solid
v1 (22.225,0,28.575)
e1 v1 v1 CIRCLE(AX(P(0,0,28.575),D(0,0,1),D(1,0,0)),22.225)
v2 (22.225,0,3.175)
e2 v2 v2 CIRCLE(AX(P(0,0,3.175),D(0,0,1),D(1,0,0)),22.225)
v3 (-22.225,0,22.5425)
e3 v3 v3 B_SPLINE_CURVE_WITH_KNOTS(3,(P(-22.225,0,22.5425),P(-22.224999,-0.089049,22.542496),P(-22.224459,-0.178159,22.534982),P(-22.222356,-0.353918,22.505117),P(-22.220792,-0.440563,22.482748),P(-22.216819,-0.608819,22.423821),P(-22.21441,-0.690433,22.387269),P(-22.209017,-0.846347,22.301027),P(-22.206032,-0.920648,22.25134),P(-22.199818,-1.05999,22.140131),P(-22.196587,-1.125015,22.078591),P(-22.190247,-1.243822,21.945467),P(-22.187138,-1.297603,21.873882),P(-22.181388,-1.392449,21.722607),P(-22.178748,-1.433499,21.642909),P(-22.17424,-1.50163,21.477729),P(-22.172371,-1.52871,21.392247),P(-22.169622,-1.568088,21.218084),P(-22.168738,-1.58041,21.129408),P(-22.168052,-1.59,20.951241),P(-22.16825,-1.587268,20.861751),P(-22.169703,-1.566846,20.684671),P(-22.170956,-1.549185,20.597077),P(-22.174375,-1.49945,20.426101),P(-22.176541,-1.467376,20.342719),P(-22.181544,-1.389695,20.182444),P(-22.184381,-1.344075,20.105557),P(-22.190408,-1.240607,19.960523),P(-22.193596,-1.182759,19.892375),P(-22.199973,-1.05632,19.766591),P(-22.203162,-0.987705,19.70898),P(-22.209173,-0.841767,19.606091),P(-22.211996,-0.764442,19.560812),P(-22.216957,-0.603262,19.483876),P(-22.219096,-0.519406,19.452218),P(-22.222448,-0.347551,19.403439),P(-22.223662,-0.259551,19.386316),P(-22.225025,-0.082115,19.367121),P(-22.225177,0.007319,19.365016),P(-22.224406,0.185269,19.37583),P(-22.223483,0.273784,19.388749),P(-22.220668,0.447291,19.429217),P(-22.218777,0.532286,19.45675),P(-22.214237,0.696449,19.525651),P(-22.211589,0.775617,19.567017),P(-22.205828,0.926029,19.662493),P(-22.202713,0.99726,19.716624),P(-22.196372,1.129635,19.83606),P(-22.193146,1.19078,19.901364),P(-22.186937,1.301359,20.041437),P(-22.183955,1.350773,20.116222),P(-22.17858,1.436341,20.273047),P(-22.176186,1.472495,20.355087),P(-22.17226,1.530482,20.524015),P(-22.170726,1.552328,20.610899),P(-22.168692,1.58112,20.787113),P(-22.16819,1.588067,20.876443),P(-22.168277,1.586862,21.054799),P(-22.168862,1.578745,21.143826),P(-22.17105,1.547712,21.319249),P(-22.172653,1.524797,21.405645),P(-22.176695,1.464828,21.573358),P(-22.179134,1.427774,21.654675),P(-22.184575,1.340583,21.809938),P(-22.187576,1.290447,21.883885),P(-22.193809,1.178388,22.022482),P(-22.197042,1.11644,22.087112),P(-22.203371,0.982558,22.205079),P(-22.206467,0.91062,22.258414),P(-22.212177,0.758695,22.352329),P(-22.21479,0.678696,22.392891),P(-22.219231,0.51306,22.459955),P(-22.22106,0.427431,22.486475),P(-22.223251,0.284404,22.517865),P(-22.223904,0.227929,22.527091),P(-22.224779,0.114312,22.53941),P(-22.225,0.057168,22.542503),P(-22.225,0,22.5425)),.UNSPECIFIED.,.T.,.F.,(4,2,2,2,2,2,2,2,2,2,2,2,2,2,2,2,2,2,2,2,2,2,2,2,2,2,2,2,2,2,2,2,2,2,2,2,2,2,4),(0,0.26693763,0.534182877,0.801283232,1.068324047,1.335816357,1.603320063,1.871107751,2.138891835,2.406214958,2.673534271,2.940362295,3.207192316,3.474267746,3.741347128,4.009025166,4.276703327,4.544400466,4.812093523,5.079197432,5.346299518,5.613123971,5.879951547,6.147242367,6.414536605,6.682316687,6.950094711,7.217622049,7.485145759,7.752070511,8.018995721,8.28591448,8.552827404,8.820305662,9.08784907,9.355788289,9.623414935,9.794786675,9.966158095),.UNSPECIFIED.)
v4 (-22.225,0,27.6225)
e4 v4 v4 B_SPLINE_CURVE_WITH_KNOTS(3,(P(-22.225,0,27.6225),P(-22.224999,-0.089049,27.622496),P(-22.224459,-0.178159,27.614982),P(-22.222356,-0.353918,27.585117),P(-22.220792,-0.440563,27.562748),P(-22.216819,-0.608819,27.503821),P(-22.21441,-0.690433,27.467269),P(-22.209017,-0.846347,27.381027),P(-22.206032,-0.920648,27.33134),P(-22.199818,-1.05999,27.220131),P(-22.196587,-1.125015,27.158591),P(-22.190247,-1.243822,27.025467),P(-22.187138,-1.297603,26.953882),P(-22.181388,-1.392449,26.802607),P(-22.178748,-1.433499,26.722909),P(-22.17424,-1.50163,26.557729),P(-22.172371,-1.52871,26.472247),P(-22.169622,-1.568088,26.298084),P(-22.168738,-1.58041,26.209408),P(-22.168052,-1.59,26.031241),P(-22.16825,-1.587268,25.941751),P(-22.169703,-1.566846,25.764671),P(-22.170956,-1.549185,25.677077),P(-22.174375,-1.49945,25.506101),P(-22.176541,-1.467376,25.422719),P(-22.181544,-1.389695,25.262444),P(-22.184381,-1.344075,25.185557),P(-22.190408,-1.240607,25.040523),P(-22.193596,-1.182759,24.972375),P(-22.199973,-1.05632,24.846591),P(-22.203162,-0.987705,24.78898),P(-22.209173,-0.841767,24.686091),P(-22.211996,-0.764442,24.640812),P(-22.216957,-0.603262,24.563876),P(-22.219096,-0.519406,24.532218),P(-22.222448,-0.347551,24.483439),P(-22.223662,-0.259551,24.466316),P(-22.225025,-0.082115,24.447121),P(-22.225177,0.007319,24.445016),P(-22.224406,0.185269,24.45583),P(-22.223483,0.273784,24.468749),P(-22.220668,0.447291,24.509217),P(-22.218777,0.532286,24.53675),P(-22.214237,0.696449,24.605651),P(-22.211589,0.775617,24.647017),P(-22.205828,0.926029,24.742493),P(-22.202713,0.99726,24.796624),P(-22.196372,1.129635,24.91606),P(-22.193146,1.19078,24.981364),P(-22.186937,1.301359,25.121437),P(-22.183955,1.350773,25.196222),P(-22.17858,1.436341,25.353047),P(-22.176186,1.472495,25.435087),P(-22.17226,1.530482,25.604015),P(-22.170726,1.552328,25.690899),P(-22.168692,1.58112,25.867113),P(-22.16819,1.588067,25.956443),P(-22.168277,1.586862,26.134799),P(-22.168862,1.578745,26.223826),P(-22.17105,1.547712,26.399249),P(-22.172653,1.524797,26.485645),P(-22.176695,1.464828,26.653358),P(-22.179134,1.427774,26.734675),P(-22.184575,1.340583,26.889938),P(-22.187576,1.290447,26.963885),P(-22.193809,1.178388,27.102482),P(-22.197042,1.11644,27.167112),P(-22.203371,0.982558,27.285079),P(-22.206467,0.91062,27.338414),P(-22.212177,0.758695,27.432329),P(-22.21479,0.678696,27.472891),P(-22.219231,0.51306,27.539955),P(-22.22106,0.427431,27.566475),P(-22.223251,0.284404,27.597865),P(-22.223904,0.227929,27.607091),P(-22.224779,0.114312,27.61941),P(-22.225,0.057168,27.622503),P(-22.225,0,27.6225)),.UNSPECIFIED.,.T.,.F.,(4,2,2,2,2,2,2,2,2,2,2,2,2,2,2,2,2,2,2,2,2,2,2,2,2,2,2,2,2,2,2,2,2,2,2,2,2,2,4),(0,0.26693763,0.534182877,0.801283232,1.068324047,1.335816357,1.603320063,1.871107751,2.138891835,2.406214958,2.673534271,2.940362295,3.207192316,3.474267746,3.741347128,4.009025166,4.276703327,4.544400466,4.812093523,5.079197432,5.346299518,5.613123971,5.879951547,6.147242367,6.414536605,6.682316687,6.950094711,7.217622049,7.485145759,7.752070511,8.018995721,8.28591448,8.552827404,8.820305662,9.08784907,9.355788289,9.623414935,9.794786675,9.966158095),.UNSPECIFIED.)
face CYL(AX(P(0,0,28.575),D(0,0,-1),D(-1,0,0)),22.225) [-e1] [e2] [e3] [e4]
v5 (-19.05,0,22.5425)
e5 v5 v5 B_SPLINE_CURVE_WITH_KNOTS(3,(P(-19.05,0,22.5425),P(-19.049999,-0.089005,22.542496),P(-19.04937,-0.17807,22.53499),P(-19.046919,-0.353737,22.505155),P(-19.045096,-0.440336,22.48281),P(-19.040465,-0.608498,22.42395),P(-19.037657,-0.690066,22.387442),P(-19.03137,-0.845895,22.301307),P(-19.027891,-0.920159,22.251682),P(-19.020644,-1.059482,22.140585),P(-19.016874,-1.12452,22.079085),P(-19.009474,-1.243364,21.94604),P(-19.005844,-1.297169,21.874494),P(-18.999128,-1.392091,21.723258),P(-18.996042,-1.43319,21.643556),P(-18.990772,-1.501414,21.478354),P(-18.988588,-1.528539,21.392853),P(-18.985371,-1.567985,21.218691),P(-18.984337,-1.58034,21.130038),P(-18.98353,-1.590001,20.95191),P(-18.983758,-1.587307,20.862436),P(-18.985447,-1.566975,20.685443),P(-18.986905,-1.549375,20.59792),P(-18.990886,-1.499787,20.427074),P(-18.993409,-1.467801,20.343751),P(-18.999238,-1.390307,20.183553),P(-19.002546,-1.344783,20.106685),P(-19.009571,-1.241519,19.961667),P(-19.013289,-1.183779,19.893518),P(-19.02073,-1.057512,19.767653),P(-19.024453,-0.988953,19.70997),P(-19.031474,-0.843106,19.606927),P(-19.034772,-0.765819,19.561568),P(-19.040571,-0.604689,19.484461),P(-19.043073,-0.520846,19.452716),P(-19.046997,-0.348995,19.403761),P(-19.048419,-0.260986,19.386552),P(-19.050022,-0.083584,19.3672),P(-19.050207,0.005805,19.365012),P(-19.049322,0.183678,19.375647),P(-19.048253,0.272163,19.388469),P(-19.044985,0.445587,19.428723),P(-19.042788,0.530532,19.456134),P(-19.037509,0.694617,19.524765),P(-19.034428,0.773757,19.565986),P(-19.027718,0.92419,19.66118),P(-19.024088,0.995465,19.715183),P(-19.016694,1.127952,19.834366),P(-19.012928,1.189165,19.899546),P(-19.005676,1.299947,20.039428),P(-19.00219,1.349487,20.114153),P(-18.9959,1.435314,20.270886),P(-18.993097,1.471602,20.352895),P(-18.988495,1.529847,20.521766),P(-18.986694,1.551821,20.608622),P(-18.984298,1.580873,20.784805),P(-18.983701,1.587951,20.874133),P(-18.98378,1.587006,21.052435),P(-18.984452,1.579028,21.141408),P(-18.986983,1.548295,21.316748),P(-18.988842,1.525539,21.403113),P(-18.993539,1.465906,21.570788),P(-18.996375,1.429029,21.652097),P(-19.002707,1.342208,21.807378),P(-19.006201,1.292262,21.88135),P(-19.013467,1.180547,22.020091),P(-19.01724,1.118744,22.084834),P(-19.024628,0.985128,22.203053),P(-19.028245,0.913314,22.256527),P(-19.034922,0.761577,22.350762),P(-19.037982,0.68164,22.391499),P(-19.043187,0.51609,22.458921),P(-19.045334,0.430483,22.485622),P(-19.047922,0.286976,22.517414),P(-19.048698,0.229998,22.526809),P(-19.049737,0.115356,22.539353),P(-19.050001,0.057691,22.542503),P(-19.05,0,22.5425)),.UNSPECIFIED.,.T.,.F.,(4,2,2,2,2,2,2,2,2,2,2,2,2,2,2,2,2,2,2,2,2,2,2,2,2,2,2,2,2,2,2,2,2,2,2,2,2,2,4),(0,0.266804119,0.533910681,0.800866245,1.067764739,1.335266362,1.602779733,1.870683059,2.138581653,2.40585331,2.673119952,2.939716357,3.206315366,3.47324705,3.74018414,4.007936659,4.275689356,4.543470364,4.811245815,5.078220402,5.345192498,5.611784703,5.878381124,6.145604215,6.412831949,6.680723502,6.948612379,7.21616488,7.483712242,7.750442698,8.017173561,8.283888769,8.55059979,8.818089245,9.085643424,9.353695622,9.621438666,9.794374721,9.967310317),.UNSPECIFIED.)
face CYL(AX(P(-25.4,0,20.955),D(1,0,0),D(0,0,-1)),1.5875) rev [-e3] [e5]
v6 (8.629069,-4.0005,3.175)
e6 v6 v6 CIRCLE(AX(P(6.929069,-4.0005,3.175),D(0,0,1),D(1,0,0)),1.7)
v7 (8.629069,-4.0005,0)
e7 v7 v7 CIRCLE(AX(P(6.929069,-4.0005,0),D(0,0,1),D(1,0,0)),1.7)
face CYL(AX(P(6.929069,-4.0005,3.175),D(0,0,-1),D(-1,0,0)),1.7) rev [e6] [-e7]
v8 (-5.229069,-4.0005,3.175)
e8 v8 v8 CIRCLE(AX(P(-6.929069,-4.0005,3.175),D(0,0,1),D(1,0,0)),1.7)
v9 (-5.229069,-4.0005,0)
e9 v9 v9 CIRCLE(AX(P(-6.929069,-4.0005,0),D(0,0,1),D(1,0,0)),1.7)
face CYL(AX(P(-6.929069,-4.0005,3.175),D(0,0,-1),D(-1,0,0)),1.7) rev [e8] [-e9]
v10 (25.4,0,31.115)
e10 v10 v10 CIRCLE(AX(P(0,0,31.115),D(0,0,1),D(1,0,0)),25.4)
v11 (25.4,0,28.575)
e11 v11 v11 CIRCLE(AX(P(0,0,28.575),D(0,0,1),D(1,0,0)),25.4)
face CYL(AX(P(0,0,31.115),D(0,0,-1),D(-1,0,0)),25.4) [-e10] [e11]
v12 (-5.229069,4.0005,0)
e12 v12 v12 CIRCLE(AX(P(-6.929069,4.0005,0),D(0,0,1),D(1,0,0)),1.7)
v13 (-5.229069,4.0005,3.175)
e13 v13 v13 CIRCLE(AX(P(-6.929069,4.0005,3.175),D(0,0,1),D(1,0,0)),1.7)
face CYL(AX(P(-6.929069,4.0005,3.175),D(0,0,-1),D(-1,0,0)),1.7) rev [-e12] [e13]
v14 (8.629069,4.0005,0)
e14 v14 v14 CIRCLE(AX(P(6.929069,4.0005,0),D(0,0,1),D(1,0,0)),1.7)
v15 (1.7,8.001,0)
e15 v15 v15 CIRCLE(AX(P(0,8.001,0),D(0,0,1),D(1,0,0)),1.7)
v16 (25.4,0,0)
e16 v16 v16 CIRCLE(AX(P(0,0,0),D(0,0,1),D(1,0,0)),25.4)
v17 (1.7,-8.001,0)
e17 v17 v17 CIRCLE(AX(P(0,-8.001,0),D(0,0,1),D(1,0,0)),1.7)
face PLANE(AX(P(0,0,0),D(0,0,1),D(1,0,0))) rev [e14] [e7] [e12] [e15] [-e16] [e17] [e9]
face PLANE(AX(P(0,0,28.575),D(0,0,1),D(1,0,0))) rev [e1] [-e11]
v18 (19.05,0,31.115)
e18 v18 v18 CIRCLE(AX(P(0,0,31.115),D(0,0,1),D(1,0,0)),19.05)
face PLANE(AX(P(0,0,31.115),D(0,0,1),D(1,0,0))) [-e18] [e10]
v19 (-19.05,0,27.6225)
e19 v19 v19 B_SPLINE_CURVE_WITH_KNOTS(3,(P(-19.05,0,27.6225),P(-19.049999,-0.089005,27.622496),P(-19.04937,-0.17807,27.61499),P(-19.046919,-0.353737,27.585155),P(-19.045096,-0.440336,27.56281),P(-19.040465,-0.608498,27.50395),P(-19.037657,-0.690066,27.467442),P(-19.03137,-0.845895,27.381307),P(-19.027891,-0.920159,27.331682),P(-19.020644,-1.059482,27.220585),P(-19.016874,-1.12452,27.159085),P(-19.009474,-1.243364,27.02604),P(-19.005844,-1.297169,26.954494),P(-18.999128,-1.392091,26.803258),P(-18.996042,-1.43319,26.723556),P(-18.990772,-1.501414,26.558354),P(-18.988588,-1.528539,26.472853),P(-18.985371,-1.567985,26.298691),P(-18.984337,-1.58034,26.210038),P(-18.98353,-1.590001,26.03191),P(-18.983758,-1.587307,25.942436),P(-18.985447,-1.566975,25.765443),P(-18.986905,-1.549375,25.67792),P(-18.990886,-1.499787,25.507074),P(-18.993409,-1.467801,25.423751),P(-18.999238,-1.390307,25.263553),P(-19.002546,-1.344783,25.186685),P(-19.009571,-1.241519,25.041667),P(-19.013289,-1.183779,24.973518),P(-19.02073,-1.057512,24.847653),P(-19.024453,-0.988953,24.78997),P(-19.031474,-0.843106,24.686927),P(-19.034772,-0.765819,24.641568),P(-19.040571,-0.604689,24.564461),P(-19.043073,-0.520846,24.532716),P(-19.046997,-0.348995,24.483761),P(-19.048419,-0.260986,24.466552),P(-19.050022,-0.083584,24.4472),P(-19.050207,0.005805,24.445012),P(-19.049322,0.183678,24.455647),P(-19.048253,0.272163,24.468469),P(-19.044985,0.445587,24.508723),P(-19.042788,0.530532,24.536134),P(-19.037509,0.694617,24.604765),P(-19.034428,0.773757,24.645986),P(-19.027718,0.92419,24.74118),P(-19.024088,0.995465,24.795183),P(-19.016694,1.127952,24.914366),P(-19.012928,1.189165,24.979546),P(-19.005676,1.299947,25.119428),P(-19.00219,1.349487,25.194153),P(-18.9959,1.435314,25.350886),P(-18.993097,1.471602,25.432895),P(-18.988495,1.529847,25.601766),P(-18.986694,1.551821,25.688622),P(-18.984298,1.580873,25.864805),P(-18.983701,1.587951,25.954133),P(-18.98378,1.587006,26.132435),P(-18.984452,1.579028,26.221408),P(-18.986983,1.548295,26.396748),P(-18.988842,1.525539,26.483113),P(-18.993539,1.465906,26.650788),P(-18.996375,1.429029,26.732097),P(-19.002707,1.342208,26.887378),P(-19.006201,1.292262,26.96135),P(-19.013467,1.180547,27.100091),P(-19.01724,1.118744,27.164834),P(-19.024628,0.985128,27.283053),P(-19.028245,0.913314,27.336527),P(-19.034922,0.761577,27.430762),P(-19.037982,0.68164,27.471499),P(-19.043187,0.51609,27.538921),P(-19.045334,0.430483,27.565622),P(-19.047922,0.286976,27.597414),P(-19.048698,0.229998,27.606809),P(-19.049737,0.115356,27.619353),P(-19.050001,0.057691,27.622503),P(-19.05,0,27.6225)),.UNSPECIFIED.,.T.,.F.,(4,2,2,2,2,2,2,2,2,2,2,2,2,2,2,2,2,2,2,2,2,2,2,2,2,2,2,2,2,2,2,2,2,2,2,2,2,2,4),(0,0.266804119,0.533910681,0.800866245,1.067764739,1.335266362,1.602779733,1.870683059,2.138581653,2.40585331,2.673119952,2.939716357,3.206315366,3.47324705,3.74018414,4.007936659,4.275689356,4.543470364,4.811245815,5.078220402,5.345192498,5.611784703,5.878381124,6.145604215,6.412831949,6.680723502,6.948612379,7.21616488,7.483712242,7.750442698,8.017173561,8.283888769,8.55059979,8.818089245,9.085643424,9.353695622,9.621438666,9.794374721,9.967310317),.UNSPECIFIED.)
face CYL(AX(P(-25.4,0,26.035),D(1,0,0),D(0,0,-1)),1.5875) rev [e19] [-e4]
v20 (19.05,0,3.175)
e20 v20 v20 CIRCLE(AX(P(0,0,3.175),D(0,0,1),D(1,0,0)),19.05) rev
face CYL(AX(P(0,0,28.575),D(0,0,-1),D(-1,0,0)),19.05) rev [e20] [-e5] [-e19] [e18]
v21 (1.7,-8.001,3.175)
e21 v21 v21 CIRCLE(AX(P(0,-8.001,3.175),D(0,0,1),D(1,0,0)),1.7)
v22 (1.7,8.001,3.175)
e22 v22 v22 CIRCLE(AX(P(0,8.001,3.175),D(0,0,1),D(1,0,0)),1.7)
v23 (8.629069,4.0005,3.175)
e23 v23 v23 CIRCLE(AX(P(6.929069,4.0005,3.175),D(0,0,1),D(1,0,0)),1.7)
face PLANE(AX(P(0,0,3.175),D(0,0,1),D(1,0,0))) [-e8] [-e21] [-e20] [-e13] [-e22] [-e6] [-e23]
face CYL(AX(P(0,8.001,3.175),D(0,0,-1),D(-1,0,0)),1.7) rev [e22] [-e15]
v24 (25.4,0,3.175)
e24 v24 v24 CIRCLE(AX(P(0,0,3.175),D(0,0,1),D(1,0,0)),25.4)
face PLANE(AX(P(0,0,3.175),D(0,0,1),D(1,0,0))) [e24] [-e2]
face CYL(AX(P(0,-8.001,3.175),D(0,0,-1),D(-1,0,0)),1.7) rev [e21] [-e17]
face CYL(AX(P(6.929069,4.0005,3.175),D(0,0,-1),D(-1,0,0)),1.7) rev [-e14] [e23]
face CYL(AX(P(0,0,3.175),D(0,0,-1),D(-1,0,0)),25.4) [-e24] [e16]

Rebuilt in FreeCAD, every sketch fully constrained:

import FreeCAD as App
import Part
import Sketcher

V = App.Vector
Q = App.Units.Quantity

doc = App.newDocument("Part")
params = doc.addObject("Spreadsheet::Sheet", "Params")
for row, (alias, value) in enumerate([
    ("sketch1_diameter", "2 in"),
    ("pad1_length", "0.125 in"),
    ("sketch2_diameter", "1.5 in"),
    ("sketch2_diameter2", "1.75 in"),
    ("pad2_length", "1 in"),
    ("sketch3_diameter", "2 in"),
    ("sketch3_diameter2", "1.5 in"),
    ("pad3_length", "0.1 in"),
    ("sketch4_diameter", "0.125 in"),
], start=1):
    params.set(f"A{row}", alias)
    params.set(f"B{row}", "=" + value)
    params.setAlias(f"B{row}", alias)

body = doc.addObject("PartDesign::Body", "Body")

sketch1 = body.newObject("Sketcher::SketchObject", "Sketch")
sketch1.AttachmentSupport = (doc.getObject("XY_Plane"), [""])
sketch1.MapMode = "FlatFace"
sketch1.addGeometry([
    Part.Circle(V(0, 0, 0), V(0, 0, 1), 25.4),
    Part.Circle(V(-6.9, -4, 0), V(0, 0, 1), 1.7),
    Part.Circle(V(0, -8, 0), V(0, 0, 1), 1.7),
    Part.Circle(V(6.9, -4, 0), V(0, 0, 1), 1.7),
    Part.Circle(V(-6.9, 4, 0), V(0, 0, 1), 1.7),
    Part.Circle(V(6.9, 4, 0), V(0, 0, 1), 1.7),
    Part.Circle(V(0, 8, 0), V(0, 0, 1), 1.7),
], False)
sketch1.addConstraint([
    Sketcher.Constraint("Coincident", 0, 3, -1, 1),
    Sketcher.Constraint("Equal", 1, 2),
    Sketcher.Constraint("Equal", 2, 3),
    Sketcher.Constraint("Equal", 3, 4),
    Sketcher.Constraint("Equal", 4, 5),
    Sketcher.Constraint("Equal", 5, 6),
    Sketcher.Constraint("Symmetric", 3, 3, 4, 3, -1, 1),
    Sketcher.Constraint("Symmetric", 1, 3, 5, 3, -1, 1),
    Sketcher.Constraint("Symmetric", 2, 3, 6, 3, -1, 1),
    Sketcher.Constraint("Symmetric", 1, 3, 3, 3, -2),
    Sketcher.Constraint("PointOnObject", 2, 3, -2),
    Sketcher.Constraint("Diameter", 0, Q("2 in")),
    Sketcher.Constraint("Diameter", 1, Q("3.4 mm")),
    Sketcher.Constraint("DistanceY", 2, 3, -1, 1, Q("0.315 in")),
    Sketcher.Constraint("DistanceY", 1, 3, 4, 3, Q("0.315 in")),
    Sketcher.Constraint("DistanceX", 1, 3, -1, 1, Q("6.929069 mm")),
])
sketch1.setExpression("Constraints[11]", "Params.sketch1_diameter")
pad1 = body.newObject("PartDesign::Pad", "Pad")
pad1.Profile = sketch1
pad1.setExpression("Length", "Params.pad1_length")

sketch2 = body.newObject("Sketcher::SketchObject", "Sketch001")
sketch2.AttachmentSupport = (doc.getObject("XY_Plane"), [""])
sketch2.MapMode = "FlatFace"
sketch2.AttachmentOffset = App.Placement(V(0, 0, 0.125 * 25.4), App.Rotation())
sketch2.addGeometry([
    Part.Circle(V(0, 0, 0), V(0, 0, 1), 22),
    Part.Circle(V(0, 0, 0), V(0, 0, 1), 19),
], False)
sketch2.addConstraint([
    Sketcher.Constraint("Coincident", 0, 3, -1, 1),
    Sketcher.Constraint("Coincident", 1, 3, -1, 1),
    Sketcher.Constraint("Diameter", 1, Q("1.5 in")),
    Sketcher.Constraint("Diameter", 0, Q("1.75 in")),
])
sketch2.setExpression("Constraints[2]", "Params.sketch2_diameter")
sketch2.setExpression("Constraints[3]", "Params.sketch2_diameter2")
pad2 = body.newObject("PartDesign::Pad", "Pad001")
pad2.Profile = sketch2
pad2.setExpression("Length", "Params.pad2_length")

sketch3 = body.newObject("Sketcher::SketchObject", "Sketch002")
sketch3.AttachmentSupport = (doc.getObject("XY_Plane"), [""])
sketch3.MapMode = "FlatFace"
sketch3.AttachmentOffset = App.Placement(V(0, 0, 1.125 * 25.4), App.Rotation())
sketch3.addGeometry([
    Part.Circle(V(0, 0, 0), V(0, 0, 1), 25),
    Part.Circle(V(0, 0, 0), V(0, 0, 1), 19),
], False)
sketch3.addConstraint([
    Sketcher.Constraint("Coincident", 0, 3, -1, 1),
    Sketcher.Constraint("Coincident", 1, 3, -1, 1),
    Sketcher.Constraint("Diameter", 0, Q("2 in")),
    Sketcher.Constraint("Diameter", 1, Q("1.5 in")),
])
sketch3.setExpression("Constraints[2]", "Params.sketch3_diameter")
sketch3.setExpression("Constraints[3]", "Params.sketch3_diameter2")
pad3 = body.newObject("PartDesign::Pad", "Pad002")
pad3.Profile = sketch3
pad3.setExpression("Length", "Params.pad3_length")

sketch4 = body.newObject("Sketcher::SketchObject", "Sketch003")
sketch4.AttachmentSupport = (doc.getObject("YZ_Plane"), [""])
sketch4.MapMode = "FlatFace"
sketch4.addGeometry([
    Part.Circle(V(0, 26, 0), V(0, 0, 1), 1.6),
    Part.Circle(V(0, 21, 0), V(0, 0, 1), 1.6),
], False)
sketch4.addConstraint([
    Sketcher.Constraint("Equal", 0, 1),
    Sketcher.Constraint("PointOnObject", 0, 3, -2),
    Sketcher.Constraint("PointOnObject", 1, 3, -2),
    Sketcher.Constraint("Diameter", 0, Q("0.125 in")),
    Sketcher.Constraint("DistanceY", 1, 3, 0, 3, Q("0.2 in")),
    Sketcher.Constraint("DistanceY", -1, 1, 0, 3, Q("1.025 in")),
])
sketch4.setExpression("Constraints[3]", "Params.sketch4_diameter")
pocket1 = body.newObject("PartDesign::Pocket", "Pocket")
pocket1.Profile = sketch4
pocket1.Type = "ThroughAll"

doc.recompute()
